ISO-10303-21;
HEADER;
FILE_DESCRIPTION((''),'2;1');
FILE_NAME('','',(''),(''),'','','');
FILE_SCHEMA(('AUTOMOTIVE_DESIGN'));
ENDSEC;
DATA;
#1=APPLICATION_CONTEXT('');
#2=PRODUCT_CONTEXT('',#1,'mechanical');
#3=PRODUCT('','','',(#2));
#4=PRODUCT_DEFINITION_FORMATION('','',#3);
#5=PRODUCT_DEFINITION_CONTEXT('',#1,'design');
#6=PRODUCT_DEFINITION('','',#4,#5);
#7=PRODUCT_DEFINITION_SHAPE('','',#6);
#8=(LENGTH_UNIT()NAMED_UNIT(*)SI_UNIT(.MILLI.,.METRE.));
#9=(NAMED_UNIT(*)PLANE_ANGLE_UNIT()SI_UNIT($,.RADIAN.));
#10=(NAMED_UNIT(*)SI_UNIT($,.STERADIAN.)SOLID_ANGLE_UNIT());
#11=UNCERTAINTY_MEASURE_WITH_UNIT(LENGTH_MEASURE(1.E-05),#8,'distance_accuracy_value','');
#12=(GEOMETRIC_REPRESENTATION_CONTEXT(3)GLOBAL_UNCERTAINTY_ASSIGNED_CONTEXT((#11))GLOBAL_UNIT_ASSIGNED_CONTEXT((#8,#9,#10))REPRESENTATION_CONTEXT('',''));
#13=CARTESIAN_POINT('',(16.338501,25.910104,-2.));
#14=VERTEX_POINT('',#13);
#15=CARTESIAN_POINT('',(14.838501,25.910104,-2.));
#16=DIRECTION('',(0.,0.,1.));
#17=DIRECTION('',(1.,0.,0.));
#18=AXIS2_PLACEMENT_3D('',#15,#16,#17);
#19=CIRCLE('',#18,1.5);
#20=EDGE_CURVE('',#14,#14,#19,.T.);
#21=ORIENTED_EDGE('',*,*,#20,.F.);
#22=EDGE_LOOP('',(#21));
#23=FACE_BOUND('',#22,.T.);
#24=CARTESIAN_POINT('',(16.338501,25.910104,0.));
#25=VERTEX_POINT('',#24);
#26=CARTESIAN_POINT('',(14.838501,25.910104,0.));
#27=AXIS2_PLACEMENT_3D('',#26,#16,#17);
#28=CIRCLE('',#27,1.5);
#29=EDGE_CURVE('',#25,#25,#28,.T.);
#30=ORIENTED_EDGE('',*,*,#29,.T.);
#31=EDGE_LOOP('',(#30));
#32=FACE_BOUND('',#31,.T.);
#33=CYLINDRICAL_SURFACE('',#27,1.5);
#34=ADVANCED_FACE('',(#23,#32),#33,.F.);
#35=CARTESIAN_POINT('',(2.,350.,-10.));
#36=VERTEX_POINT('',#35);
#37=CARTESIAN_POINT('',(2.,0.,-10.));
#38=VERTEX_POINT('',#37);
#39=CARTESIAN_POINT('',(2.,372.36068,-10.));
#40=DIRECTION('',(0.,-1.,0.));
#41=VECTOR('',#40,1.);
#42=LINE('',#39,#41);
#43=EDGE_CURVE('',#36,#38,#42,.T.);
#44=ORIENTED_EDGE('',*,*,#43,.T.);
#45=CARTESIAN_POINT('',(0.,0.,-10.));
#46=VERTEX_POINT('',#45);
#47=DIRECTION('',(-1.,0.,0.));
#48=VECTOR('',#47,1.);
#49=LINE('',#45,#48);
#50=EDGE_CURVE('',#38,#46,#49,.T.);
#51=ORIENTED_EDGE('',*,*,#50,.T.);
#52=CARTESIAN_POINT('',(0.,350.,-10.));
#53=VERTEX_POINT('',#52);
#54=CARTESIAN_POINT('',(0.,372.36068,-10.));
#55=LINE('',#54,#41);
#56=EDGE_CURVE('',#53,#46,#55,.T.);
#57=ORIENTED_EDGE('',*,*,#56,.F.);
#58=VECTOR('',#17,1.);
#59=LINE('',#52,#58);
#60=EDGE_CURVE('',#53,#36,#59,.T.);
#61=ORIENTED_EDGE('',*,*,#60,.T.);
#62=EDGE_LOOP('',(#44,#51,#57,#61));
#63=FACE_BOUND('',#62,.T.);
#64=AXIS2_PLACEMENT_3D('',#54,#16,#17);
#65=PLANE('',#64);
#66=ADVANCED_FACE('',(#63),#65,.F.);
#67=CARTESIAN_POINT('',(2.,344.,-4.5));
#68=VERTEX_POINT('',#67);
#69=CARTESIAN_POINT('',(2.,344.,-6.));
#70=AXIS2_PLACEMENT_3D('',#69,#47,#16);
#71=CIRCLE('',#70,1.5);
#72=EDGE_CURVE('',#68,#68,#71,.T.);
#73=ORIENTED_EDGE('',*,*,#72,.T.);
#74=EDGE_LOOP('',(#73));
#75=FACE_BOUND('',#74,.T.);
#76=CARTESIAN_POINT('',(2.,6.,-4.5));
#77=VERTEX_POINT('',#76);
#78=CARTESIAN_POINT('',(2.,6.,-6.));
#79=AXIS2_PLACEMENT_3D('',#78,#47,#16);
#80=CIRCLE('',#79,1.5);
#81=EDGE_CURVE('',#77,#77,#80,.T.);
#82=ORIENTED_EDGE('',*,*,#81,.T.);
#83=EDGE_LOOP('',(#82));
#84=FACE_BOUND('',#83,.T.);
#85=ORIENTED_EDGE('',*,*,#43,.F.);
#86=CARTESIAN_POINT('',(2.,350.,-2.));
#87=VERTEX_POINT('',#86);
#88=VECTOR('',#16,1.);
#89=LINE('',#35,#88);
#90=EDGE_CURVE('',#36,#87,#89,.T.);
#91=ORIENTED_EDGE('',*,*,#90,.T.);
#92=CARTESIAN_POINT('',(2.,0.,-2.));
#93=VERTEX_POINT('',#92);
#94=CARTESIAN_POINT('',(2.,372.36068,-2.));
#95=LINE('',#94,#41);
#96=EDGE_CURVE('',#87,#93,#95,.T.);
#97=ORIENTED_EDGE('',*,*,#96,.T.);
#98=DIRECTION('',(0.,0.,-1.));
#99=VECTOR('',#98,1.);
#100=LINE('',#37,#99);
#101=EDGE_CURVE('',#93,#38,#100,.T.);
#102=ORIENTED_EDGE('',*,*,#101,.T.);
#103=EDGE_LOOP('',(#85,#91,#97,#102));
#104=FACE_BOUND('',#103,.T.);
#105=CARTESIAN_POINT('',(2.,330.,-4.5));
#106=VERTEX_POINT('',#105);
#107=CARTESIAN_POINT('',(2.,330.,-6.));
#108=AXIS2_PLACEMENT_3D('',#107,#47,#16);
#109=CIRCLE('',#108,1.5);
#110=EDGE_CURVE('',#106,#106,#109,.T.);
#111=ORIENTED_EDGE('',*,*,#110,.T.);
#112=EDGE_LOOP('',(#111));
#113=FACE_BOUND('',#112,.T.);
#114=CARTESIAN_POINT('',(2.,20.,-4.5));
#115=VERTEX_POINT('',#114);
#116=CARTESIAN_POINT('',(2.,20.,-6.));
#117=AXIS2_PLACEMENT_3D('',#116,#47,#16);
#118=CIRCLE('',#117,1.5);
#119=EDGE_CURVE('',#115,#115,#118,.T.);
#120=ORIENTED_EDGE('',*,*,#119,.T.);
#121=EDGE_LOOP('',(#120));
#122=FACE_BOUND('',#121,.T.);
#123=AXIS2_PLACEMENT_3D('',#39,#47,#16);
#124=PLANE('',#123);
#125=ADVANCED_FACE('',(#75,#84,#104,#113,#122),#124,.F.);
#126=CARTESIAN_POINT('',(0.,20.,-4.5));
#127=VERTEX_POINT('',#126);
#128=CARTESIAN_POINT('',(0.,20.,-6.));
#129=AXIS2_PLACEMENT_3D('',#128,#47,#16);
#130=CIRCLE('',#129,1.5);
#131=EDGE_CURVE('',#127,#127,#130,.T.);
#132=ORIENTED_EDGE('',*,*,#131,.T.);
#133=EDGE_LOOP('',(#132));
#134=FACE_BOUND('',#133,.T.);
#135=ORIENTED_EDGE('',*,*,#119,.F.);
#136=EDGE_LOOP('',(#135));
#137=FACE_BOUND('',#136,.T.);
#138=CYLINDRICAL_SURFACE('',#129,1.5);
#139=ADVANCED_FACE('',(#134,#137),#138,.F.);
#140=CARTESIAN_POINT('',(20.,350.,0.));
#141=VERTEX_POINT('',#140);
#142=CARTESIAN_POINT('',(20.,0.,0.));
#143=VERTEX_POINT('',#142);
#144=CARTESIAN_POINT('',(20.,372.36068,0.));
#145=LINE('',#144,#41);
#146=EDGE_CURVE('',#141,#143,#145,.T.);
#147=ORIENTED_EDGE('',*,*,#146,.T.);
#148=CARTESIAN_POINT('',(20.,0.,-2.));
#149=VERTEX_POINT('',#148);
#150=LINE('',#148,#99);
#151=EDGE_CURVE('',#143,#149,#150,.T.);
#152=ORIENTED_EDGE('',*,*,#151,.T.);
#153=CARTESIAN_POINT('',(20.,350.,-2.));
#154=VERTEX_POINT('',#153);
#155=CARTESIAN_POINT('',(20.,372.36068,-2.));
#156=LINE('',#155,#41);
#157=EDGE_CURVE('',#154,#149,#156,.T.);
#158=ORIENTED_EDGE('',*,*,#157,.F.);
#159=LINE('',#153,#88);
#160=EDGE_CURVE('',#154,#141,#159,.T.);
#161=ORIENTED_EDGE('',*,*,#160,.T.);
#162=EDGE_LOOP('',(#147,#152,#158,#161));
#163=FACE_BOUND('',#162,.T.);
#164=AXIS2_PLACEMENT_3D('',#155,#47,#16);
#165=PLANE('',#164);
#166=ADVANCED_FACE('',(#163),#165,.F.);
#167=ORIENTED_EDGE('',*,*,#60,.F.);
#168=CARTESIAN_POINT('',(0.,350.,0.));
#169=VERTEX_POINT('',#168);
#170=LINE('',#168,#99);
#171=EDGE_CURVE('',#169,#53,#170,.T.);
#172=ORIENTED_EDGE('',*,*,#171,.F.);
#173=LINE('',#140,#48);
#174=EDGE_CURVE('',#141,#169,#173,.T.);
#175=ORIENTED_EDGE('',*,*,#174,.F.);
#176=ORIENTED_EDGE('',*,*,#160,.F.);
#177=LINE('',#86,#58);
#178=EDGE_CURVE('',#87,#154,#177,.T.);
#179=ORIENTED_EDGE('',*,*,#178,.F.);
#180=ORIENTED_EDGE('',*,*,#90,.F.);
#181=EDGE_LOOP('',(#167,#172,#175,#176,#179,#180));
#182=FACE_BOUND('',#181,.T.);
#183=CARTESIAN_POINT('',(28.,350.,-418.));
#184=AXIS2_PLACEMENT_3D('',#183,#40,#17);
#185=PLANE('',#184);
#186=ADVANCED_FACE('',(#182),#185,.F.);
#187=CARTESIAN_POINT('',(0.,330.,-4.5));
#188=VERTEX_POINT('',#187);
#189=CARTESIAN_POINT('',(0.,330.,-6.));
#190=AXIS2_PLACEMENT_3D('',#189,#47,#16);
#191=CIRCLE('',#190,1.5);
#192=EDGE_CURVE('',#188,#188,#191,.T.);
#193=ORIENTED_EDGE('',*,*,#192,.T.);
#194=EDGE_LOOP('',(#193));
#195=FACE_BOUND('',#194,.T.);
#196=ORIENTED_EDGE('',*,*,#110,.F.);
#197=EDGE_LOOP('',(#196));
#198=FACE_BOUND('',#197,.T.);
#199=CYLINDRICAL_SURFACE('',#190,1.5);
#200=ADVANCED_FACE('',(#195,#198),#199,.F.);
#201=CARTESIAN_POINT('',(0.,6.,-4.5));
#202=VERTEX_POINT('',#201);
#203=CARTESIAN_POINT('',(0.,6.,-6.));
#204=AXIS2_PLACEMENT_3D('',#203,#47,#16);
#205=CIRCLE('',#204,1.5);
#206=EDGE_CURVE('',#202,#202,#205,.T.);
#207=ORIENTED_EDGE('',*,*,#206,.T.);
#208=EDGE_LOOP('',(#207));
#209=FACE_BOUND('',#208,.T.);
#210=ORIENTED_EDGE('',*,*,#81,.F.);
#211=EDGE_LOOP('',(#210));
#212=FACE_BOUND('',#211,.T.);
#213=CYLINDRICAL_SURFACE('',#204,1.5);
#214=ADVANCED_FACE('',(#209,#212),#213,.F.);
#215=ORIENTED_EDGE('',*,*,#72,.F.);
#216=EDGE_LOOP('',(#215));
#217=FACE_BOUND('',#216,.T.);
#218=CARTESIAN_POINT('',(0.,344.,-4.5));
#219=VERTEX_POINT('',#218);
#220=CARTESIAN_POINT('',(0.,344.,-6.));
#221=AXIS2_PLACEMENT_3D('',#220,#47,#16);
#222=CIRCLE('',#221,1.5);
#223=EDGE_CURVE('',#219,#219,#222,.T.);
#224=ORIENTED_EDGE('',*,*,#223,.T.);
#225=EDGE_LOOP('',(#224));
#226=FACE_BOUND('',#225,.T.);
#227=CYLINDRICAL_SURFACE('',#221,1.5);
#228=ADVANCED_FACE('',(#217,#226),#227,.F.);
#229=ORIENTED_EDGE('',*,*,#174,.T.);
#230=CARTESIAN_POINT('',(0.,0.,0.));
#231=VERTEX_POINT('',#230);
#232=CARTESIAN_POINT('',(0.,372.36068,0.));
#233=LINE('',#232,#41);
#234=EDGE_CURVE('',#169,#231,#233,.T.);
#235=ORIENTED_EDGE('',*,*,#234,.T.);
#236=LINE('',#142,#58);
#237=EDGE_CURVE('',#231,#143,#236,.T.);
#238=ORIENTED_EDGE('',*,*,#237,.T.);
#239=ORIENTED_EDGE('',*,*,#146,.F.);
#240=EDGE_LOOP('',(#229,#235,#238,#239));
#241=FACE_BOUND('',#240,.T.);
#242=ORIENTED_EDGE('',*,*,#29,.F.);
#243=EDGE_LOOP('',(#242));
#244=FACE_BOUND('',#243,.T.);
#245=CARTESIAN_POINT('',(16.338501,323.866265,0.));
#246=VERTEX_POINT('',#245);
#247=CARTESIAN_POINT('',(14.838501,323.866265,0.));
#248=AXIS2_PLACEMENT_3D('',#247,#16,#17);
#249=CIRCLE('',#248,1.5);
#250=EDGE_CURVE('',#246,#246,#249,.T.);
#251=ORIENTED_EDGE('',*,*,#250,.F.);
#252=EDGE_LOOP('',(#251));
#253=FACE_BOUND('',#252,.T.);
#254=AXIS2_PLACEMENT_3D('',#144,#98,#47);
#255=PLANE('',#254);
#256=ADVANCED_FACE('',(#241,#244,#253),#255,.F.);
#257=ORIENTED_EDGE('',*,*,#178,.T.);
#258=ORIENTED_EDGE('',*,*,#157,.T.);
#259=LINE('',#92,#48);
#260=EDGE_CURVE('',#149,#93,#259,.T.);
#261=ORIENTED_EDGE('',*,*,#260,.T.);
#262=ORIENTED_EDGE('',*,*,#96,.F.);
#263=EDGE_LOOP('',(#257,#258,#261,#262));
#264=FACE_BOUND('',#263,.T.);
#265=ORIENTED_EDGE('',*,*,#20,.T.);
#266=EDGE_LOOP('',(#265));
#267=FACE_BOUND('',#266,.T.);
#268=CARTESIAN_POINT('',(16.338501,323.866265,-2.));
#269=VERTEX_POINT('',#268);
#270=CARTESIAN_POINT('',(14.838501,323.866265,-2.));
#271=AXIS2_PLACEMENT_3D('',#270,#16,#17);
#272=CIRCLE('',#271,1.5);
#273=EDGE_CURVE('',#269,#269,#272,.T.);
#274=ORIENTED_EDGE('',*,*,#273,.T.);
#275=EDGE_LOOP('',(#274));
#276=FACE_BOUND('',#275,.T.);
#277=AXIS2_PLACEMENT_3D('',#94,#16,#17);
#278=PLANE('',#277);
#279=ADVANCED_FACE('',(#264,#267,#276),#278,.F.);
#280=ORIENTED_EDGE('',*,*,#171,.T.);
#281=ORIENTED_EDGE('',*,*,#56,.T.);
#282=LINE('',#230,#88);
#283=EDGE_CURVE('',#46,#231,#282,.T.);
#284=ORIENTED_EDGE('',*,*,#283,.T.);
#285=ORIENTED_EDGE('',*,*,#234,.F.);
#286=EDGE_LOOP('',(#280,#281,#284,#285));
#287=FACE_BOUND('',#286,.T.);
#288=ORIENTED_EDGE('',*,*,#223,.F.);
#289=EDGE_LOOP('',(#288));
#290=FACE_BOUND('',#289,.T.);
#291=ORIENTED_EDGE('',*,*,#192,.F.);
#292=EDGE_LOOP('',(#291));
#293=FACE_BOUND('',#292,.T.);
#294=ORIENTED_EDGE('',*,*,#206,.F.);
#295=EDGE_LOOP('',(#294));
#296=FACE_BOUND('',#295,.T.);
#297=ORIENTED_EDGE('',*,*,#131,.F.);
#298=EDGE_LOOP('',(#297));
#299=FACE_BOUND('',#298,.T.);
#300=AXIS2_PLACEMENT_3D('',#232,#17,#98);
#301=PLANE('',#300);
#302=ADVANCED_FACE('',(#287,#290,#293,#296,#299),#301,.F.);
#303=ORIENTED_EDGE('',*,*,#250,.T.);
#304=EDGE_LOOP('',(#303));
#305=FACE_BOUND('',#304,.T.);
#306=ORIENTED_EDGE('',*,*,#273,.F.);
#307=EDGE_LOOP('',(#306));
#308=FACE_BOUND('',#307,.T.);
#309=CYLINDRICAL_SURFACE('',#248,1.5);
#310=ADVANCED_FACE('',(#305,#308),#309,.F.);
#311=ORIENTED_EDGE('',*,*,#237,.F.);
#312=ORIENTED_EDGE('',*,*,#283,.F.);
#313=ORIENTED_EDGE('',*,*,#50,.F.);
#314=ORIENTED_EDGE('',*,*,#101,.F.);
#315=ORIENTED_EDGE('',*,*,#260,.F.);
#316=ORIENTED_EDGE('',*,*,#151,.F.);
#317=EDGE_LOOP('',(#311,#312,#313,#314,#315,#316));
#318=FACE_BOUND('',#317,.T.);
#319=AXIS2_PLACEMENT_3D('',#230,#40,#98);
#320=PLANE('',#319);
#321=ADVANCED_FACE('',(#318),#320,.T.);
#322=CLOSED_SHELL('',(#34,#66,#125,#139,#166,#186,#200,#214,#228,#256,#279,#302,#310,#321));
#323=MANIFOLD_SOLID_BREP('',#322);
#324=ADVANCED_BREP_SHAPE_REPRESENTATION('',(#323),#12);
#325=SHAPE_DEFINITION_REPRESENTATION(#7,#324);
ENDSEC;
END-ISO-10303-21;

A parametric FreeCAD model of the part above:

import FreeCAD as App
import Part
import Sketcher
Q = App.Units.Quantity

doc = App.newDocument("Part")
body = doc.addObject("PartDesign::Body", "Body")

sketch1 = body.newObject("Sketcher::SketchObject", "Sketch")
sketch1.AttachmentSupport = (doc.getObject("XZ_Plane"), [""])
sketch1.MapMode = "FlatFace"
sketch1.addGeometry([
    Part.LineSegment(App.Vector(0, -10, 0), App.Vector(0, 0, 0)),
    Part.LineSegment(App.Vector(0, 0, 0), App.Vector(20, 0, 0)),
    Part.LineSegment(App.Vector(20, 0, 0), App.Vector(20, -2, 0)),
    Part.LineSegment(App.Vector(20, -2, 0), App.Vector(2, -2, 0)),
    Part.LineSegment(App.Vector(2, -2, 0), App.Vector(2, -10, 0)),
    Part.LineSegment(App.Vector(2, -10, 0), App.Vector(0, -10, 0)),
], False)
sketch1.addConstraint([
    Sketcher.Constraint("Coincident", 0, 2, 1, 1),
    Sketcher.Constraint("Coincident", 1, 2, 2, 1),
    Sketcher.Constraint("Coincident", 2, 2, 3, 1),
    Sketcher.Constraint("Coincident", 3, 2, 4, 1),
    Sketcher.Constraint("Coincident", 4, 2, 5, 1),
    Sketcher.Constraint("Coincident", 5, 2, 0, 1),
    Sketcher.Constraint("Vertical", 0),
    Sketcher.Constraint("Horizontal", 1),
    Sketcher.Constraint("Vertical", 2),
    Sketcher.Constraint("Horizontal", 3),
    Sketcher.Constraint("Vertical", 4),
    Sketcher.Constraint("Horizontal", 5),
    Sketcher.Constraint("Coincident", 0, 2, -1, 1),
    Sketcher.Constraint("Equal", 5, 2),
    Sketcher.Constraint("DistanceX", 1, 1, 1, 2, Q("20 mm")),
    Sketcher.Constraint("DistanceX", 3, 2, 3, 1, Q("18 mm")),
    Sketcher.Constraint("DistanceY", 0, 1, 0, 2, Q("10 mm")),
])
pad1 = body.newObject("PartDesign::Pad", "Pad")
pad1.Profile = sketch1
pad1.Length = 350
pad1.Reversed = True

sketch2 = body.newObject("Sketcher::SketchObject", "Sketch001")
sketch2.AttachmentSupport = (doc.getObject("XY_Plane"), [""])
sketch2.MapMode = "FlatFace"
sketch2.addGeometry([
    Part.Circle(App.Vector(14.838501, 25.910104, 0), App.Vector(0, 0, 1), 1.5),
    Part.Circle(App.Vector(14.838501, 323.866265, 0), App.Vector(0, 0, 1), 1.5),
], False)
sketch2.addConstraint([
    Sketcher.Constraint("Equal", 0, 1),
    Sketcher.Constraint("Vertical", 0, 3, 1, 3),
    Sketcher.Constraint("Diameter", 0, Q("3 mm")),
    Sketcher.Constraint("DistanceX", -1, 1, 0, 3, Q("14.838501 mm")),
    Sketcher.Constraint("DistanceY", 0, 3, 1, 3, Q("297.956161 mm")),
    Sketcher.Constraint("DistanceY", -1, 1, 0, 3, Q("25.910104 mm")),
])
doc.recompute()
hole = body.newObject("PartDesign::Hole", "Hole")
hole.Profile = sketch2
hole.ThreadType = "None"
hole.Diameter = 3
hole.DepthType = "ThroughAll"

sketch3 = body.newObject("Sketcher::SketchObject", "Sketch002")
sketch3.AttachmentSupport = (doc.getObject("YZ_Plane"), [""])
sketch3.MapMode = "FlatFace"
sketch3.addGeometry([
    Part.Circle(App.Vector(6, -6, 0), App.Vector(0, 0, 1), 1.5),
    Part.Circle(App.Vector(20, -6, 0), App.Vector(0, 0, 1), 1.5),
    Part.Circle(App.Vector(344, -6, 0), App.Vector(0, 0, 1), 1.5),
    Part.Circle(App.Vector(330, -6, 0), App.Vector(0, 0, 1), 1.5),
], False)
sketch3.addConstraint([
    Sketcher.Constraint("Equal", 0, 1),
    Sketcher.Constraint("Equal", 1, 2),
    Sketcher.Constraint("Equal", 2, 3),
    Sketcher.Constraint("Horizontal", 0, 3, 1, 3),
    Sketcher.Constraint("Horizontal", 1, 3, 2, 3),
    Sketcher.Constraint("Horizontal", 2, 3, 3, 3),
    Sketcher.Constraint("Diameter", 0, Q("3 mm")),
    Sketcher.Constraint("DistanceX", -1, 1, 0, 3, Q("6 mm")),
    Sketcher.Constraint("DistanceY", 0, 3, -1, 1, Q("6 mm")),
    Sketcher.Constraint("DistanceX", -1, 1, 1, 3, Q("20 mm")),
    Sketcher.Constraint("DistanceX", -1, 1, 2, 3, Q("344 mm")),
    Sketcher.Constraint("DistanceX", -1, 1, 3, 3, Q("330 mm")),
])
doc.recompute()
hole2 = body.newObject("PartDesign::Hole", "Hole001")
hole2.Profile = sketch3
hole2.ThreadType = "None"
hole2.Diameter = 3
hole2.DepthType = "Dimension"
hole2.Depth = 4
hole2.DrillPoint = "Flat"
hole2.Reversed = True

doc.recompute()
